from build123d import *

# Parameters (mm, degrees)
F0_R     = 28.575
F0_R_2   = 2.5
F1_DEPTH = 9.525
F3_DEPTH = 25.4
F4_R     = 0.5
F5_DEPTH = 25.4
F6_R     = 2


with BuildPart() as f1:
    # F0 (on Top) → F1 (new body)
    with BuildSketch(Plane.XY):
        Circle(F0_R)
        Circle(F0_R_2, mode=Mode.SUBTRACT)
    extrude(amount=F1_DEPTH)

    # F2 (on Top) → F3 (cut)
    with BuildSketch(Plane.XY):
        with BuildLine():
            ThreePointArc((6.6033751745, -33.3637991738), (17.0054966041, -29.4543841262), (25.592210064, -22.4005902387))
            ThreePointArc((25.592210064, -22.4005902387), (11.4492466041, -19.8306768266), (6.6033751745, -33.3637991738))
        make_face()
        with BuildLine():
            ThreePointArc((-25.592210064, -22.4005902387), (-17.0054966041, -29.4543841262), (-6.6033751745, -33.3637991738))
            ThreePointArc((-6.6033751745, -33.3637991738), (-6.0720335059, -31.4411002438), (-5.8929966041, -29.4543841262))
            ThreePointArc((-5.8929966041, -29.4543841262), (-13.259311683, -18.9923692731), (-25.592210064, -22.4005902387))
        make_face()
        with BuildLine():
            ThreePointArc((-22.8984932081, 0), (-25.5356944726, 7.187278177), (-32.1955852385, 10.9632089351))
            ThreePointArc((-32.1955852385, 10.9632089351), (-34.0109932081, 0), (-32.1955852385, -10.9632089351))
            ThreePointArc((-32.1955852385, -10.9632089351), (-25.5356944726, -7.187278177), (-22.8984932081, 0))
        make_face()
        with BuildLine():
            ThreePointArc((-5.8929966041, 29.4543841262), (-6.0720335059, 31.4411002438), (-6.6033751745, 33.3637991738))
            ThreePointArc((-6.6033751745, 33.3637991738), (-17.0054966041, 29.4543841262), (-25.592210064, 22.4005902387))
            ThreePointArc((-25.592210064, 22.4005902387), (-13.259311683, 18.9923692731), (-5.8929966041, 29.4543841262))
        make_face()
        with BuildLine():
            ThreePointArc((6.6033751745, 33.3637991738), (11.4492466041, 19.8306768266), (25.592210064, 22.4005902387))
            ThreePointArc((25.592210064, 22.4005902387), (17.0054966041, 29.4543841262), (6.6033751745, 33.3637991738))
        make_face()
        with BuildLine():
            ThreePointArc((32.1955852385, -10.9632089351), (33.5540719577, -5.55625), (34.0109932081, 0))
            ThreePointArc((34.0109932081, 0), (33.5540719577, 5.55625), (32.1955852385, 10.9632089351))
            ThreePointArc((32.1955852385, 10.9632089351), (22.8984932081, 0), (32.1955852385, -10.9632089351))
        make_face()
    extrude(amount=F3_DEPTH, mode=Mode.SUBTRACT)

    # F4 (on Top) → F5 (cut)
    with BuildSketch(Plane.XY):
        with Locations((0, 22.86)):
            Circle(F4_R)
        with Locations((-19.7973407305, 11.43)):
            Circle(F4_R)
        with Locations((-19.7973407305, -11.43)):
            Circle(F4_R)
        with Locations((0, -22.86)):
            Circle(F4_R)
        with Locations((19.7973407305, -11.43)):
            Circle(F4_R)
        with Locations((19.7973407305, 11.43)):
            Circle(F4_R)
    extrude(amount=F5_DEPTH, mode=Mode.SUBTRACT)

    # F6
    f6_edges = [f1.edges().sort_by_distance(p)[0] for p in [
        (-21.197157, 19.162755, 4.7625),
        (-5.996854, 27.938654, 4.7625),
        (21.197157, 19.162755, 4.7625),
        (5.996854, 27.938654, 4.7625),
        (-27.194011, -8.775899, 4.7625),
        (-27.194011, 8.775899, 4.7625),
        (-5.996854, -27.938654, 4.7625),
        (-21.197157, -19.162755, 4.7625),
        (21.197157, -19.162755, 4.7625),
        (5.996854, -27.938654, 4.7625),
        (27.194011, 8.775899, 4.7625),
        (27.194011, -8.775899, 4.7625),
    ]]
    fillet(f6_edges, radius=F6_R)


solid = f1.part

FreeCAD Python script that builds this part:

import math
import FreeCAD as App
import Part
import Sketcher
from FreeCAD import Vector
Q = App.Units.Quantity


def edges_at(feature, points):
    """Names of the edges that pass closest to the given points."""
    edges = feature.Shape.Edges
    near = lambda p: min(range(len(edges)), key=lambda i: edges[i].distToShape(Part.Vertex(*p))[0])
    return sorted({f"Edge{near(p) + 1}" for p in points})

doc = App.newDocument("Part")
body = doc.addObject("PartDesign::Body", "Body")

# Sketch on XY plane
sketch1 = body.newObject("Sketcher::SketchObject", "Sketch")
sketch1.AttachmentSupport = (doc.getObject("XY_Plane"), [""])
sketch1.MapMode = "FlatFace"
sketch1.addGeometry([
    Part.Circle(Vector(0, 0, 0), Vector(0, 0, 1), 28.6),
    Part.Circle(Vector(0, 0, 0), Vector(0, 0, 1), 2.5),
], False)
sketch1.addConstraint([
    Sketcher.Constraint("Coincident", 0, 3, -1, 1),
    Sketcher.Constraint("Coincident", 1, 3, -1, 1),
    Sketcher.Constraint("Diameter", 0, Q("2.25 in")),
    Sketcher.Constraint("Diameter", 1, 5.0),
])
pad1 = body.newObject("PartDesign::Pad", "Pad")
pad1.Profile = sketch1
pad1.Length = Q("0.375 in")

# Sketch on XY plane
sketch2 = body.newObject("Sketcher::SketchObject", "Sketch001")
sketch2.AttachmentSupport = (doc.getObject("XY_Plane"), [""])
sketch2.MapMode = "FlatFace"
sketch2.addGeometry([
    Part.ArcOfCircle(Part.Circle(Vector(0, 0, 0), Vector(0, 0, 1), 34), math.radians(-79), math.radians(-41)),  # 0
    Part.ArcOfCircle(Part.Circle(Vector(17, -29.5, 0), Vector(0, 0, 1), 11.1), math.radians(39), math.radians(201)),  # 1
    Part.ArcOfCircle(Part.Circle(Vector(0, 0, 0), Vector(0, 0, 1), 34), math.radians(-139), math.radians(-101)),  # 2
    Part.ArcOfCircle(Part.Circle(Vector(-17, -29.5, 0), Vector(0, 0, 1), 11.1), math.radians(-21), math.radians(0)),  # 3
    Part.ArcOfCircle(Part.Circle(Vector(-17, -29.5, 0), Vector(0, 0, 1), 11.1), math.radians(0), math.radians(141)),  # 4
    Part.ArcOfCircle(Part.Circle(Vector(-34, 0, 0), Vector(0, 0, 1), 11.1), math.radians(0), math.radians(81)),  # 5
    Part.ArcOfCircle(Part.Circle(Vector(0, 0, 0), Vector(0, 0, 1), 34), math.radians(161), math.radians(199)),  # 6
    Part.ArcOfCircle(Part.Circle(Vector(-34, 0, 0), Vector(0, 0, 1), 11.1), math.radians(-81), math.radians(0)),  # 7
    Part.ArcOfCircle(Part.Circle(Vector(-17, 29.5, 0), Vector(0, 0, 1), 11.1), math.radians(0), math.radians(21)),  # 8
    Part.ArcOfCircle(Part.Circle(Vector(0, 0, 0), Vector(0, 0, 1), 34), math.radians(101), math.radians(139)),  # 9
    Part.ArcOfCircle(Part.Circle(Vector(-17, 29.5, 0), Vector(0, 0, 1), 11.1), math.radians(-141), math.radians(0)),  # 10
    Part.ArcOfCircle(Part.Circle(Vector(17, 29.5, 0), Vector(0, 0, 1), 11.1), math.radians(159), math.radians(321)),  # 11
    Part.ArcOfCircle(Part.Circle(Vector(0, 0, 0), Vector(0, 0, 1), 34), math.radians(41), math.radians(79)),  # 12
    Part.ArcOfCircle(Part.Circle(Vector(0, 0, 0), Vector(0, 0, 1), 34), math.radians(-18.8), math.radians(0)),  # 13
    Part.ArcOfCircle(Part.Circle(Vector(0, 0, 0), Vector(0, 0, 1), 34), math.radians(0), math.radians(18.8)),  # 14
    Part.ArcOfCircle(Part.Circle(Vector(34, 0, 0), Vector(0, 0, 1), 11.1), math.radians(99), math.radians(261)),  # 15
], False)
sketch2.addConstraint([
    Sketcher.Constraint("Coincident", 0, 1, 1, 2),
    Sketcher.Constraint("Coincident", 1, 1, 0, 2),
    Sketcher.Constraint("Coincident", 2, 2, 3, 1),
    Sketcher.Constraint("Tangent", 3, 2, 4, 1),
    Sketcher.Constraint("Coincident", 4, 2, 2, 1),
    Sketcher.Constraint("Coincident", 5, 2, 6, 1),
    Sketcher.Constraint("Coincident", 6, 2, 7, 1),
    Sketcher.Constraint("Tangent", 7, 2, 5, 1),
    Sketcher.Constraint("Coincident", 8, 2, 9, 1),
    Sketcher.Constraint("Coincident", 9, 2, 10, 1),
    Sketcher.Constraint("Tangent", 10, 2, 8, 1),
    Sketcher.Constraint("Coincident", 11, 1, 12, 2),
    Sketcher.Constraint("Coincident", 12, 1, 11, 2),
    Sketcher.Constraint("Tangent", 13, 2, 14, 1),
    Sketcher.Constraint("Coincident", 14, 2, 15, 1),
    Sketcher.Constraint("Coincident", 15, 2, 13, 1),
    Sketcher.Constraint("Coincident", 0, 3, -1, 1),
    Sketcher.Constraint("Coincident", 2, 3, -1, 1),
    Sketcher.Constraint("Coincident", 6, 3, -1, 1),
    Sketcher.Constraint("Coincident", 9, 3, -1, 1),
    Sketcher.Constraint("Coincident", 12, 3, -1, 1),
    Sketcher.Constraint("Coincident", 13, 3, -1, 1),
    Sketcher.Constraint("Coincident", 13, 2, 15, 3),
    Sketcher.Constraint("Equal", 0, 2),
    Sketcher.Constraint("Equal", 1, 3),
    Sketcher.Constraint("Equal", 3, 4),
    Sketcher.Constraint("Equal", 4, 5),
    Sketcher.Constraint("Equal", 2, 6),
    Sketcher.Constraint("Equal", 5, 7),
    Sketcher.Constraint("Equal", 7, 8),
    Sketcher.Constraint("Equal", 6, 9),
    Sketcher.Constraint("Equal", 8, 10),
    Sketcher.Constraint("Equal", 10, 11),
    Sketcher.Constraint("Equal", 9, 12),
    Sketcher.Constraint("Equal", 12, 13),
    Sketcher.Constraint("Equal", 13, 14),
    Sketcher.Constraint("Equal", 11, 15),
    Sketcher.Constraint("Symmetric", 1, 3, 8, 3, -1, 1),
    Sketcher.Constraint("Symmetric", 3, 3, 11, 3, -1, 1),
    Sketcher.Constraint("Symmetric", 5, 3, 15, 3, -1, 1),
    Sketcher.Constraint("Symmetric", 1, 3, 3, 3, -2),
    Sketcher.Constraint("PointOnObject", 5, 3, -1),
    Sketcher.Constraint("PointOnObject", 7, 2, -1),
    Sketcher.Constraint("Horizontal", 4, 3, 3, 2),
    Sketcher.Constraint("Horizontal", 11, 3, 10, 2),
    Sketcher.Constraint("Radius", 1, Q("0.4375 in")),
    Sketcher.Constraint("Radius", 0, 34.010993),
    Sketcher.Constraint("DistanceY", 0, 1, -1, 1, 33.363799),
    Sketcher.Constraint("DistanceX", -1, 1, 1, 1, 25.59221),
])
pocket1 = body.newObject("PartDesign::Pocket", "Pocket")
pocket1.Profile = sketch2
pocket1.Length = Q("1 in")
pocket1.Reversed = True

# Sketch on XY plane
sketch3 = body.newObject("Sketcher::SketchObject", "Sketch002")
sketch3.AttachmentSupport = (doc.getObject("XY_Plane"), [""])
sketch3.MapMode = "FlatFace"
sketch3.addGeometry([
    Part.Circle(Vector(0, 22.9, 0), Vector(0, 0, 1), 0.5),  # 0
    Part.Circle(Vector(-19.8, 11.4, 0), Vector(0, 0, 1), 0.5),  # 1
    Part.Circle(Vector(-19.8, -11.4, 0), Vector(0, 0, 1), 0.5),  # 2
    Part.Circle(Vector(0, -22.9, 0), Vector(0, 0, 1), 0.5),  # 3
    Part.Circle(Vector(19.8, -11.4, 0), Vector(0, 0, 1), 0.5),  # 4
    Part.Circle(Vector(19.8, 11.4, 0), Vector(0, 0, 1), 0.5),  # 5
], False)
sketch3.addConstraint([
    Sketcher.Constraint("Equal", 0, 1),
    Sketcher.Constraint("Equal", 1, 2),
    Sketcher.Constraint("Equal", 2, 3),
    Sketcher.Constraint("Equal", 3, 4),
    Sketcher.Constraint("Equal", 4, 5),
    Sketcher.Constraint("Symmetric", 0, 3, 3, 3, -1, 1),
    Sketcher.Constraint("Symmetric", 1, 3, 4, 3, -1, 1),
    Sketcher.Constraint("Symmetric", 2, 3, 5, 3, -1, 1),
    Sketcher.Constraint("Symmetric", 2, 3, 4, 3, -2),
    Sketcher.Constraint("PointOnObject", 0, 3, -2),
    Sketcher.Constraint("DistanceY", -1, 1, 0, 3, Q("0.9 in")),
    Sketcher.Constraint("DistanceY", 2, 3, 1, 3, Q("0.9 in")),
    Sketcher.Constraint("Diameter", 0, 1.0),
    Sketcher.Constraint("DistanceX", 1, 3, -1, 1, 19.797341),
])
pocket2 = body.newObject("PartDesign::Pocket", "Pocket001")
pocket2.Profile = sketch3
pocket2.Length = Q("1 in")
pocket2.Reversed = True
doc.recompute()

fillet = body.newObject("PartDesign::Fillet", "Fillet")
fillet.Base = (pocket2, edges_at(pocket2, [
    (-21.197, 19.163, 4.763),
    (-5.997, 27.939, 4.763),
    (21.197, 19.163, 4.763),
    (5.997, 27.939, 4.763),
    (-27.194, -8.776, 4.763),
    (-27.194, 8.776, 4.763),
    (-5.997, -27.939, 4.763),
    (-21.197, -19.163, 4.763),
    (21.197, -19.163, 4.763),
    (5.997, -27.939, 4.763),
    (27.194, 8.776, 4.763),
    (27.194, -8.776, 4.763),
]))
fillet.Radius = 2

doc.recompute()
